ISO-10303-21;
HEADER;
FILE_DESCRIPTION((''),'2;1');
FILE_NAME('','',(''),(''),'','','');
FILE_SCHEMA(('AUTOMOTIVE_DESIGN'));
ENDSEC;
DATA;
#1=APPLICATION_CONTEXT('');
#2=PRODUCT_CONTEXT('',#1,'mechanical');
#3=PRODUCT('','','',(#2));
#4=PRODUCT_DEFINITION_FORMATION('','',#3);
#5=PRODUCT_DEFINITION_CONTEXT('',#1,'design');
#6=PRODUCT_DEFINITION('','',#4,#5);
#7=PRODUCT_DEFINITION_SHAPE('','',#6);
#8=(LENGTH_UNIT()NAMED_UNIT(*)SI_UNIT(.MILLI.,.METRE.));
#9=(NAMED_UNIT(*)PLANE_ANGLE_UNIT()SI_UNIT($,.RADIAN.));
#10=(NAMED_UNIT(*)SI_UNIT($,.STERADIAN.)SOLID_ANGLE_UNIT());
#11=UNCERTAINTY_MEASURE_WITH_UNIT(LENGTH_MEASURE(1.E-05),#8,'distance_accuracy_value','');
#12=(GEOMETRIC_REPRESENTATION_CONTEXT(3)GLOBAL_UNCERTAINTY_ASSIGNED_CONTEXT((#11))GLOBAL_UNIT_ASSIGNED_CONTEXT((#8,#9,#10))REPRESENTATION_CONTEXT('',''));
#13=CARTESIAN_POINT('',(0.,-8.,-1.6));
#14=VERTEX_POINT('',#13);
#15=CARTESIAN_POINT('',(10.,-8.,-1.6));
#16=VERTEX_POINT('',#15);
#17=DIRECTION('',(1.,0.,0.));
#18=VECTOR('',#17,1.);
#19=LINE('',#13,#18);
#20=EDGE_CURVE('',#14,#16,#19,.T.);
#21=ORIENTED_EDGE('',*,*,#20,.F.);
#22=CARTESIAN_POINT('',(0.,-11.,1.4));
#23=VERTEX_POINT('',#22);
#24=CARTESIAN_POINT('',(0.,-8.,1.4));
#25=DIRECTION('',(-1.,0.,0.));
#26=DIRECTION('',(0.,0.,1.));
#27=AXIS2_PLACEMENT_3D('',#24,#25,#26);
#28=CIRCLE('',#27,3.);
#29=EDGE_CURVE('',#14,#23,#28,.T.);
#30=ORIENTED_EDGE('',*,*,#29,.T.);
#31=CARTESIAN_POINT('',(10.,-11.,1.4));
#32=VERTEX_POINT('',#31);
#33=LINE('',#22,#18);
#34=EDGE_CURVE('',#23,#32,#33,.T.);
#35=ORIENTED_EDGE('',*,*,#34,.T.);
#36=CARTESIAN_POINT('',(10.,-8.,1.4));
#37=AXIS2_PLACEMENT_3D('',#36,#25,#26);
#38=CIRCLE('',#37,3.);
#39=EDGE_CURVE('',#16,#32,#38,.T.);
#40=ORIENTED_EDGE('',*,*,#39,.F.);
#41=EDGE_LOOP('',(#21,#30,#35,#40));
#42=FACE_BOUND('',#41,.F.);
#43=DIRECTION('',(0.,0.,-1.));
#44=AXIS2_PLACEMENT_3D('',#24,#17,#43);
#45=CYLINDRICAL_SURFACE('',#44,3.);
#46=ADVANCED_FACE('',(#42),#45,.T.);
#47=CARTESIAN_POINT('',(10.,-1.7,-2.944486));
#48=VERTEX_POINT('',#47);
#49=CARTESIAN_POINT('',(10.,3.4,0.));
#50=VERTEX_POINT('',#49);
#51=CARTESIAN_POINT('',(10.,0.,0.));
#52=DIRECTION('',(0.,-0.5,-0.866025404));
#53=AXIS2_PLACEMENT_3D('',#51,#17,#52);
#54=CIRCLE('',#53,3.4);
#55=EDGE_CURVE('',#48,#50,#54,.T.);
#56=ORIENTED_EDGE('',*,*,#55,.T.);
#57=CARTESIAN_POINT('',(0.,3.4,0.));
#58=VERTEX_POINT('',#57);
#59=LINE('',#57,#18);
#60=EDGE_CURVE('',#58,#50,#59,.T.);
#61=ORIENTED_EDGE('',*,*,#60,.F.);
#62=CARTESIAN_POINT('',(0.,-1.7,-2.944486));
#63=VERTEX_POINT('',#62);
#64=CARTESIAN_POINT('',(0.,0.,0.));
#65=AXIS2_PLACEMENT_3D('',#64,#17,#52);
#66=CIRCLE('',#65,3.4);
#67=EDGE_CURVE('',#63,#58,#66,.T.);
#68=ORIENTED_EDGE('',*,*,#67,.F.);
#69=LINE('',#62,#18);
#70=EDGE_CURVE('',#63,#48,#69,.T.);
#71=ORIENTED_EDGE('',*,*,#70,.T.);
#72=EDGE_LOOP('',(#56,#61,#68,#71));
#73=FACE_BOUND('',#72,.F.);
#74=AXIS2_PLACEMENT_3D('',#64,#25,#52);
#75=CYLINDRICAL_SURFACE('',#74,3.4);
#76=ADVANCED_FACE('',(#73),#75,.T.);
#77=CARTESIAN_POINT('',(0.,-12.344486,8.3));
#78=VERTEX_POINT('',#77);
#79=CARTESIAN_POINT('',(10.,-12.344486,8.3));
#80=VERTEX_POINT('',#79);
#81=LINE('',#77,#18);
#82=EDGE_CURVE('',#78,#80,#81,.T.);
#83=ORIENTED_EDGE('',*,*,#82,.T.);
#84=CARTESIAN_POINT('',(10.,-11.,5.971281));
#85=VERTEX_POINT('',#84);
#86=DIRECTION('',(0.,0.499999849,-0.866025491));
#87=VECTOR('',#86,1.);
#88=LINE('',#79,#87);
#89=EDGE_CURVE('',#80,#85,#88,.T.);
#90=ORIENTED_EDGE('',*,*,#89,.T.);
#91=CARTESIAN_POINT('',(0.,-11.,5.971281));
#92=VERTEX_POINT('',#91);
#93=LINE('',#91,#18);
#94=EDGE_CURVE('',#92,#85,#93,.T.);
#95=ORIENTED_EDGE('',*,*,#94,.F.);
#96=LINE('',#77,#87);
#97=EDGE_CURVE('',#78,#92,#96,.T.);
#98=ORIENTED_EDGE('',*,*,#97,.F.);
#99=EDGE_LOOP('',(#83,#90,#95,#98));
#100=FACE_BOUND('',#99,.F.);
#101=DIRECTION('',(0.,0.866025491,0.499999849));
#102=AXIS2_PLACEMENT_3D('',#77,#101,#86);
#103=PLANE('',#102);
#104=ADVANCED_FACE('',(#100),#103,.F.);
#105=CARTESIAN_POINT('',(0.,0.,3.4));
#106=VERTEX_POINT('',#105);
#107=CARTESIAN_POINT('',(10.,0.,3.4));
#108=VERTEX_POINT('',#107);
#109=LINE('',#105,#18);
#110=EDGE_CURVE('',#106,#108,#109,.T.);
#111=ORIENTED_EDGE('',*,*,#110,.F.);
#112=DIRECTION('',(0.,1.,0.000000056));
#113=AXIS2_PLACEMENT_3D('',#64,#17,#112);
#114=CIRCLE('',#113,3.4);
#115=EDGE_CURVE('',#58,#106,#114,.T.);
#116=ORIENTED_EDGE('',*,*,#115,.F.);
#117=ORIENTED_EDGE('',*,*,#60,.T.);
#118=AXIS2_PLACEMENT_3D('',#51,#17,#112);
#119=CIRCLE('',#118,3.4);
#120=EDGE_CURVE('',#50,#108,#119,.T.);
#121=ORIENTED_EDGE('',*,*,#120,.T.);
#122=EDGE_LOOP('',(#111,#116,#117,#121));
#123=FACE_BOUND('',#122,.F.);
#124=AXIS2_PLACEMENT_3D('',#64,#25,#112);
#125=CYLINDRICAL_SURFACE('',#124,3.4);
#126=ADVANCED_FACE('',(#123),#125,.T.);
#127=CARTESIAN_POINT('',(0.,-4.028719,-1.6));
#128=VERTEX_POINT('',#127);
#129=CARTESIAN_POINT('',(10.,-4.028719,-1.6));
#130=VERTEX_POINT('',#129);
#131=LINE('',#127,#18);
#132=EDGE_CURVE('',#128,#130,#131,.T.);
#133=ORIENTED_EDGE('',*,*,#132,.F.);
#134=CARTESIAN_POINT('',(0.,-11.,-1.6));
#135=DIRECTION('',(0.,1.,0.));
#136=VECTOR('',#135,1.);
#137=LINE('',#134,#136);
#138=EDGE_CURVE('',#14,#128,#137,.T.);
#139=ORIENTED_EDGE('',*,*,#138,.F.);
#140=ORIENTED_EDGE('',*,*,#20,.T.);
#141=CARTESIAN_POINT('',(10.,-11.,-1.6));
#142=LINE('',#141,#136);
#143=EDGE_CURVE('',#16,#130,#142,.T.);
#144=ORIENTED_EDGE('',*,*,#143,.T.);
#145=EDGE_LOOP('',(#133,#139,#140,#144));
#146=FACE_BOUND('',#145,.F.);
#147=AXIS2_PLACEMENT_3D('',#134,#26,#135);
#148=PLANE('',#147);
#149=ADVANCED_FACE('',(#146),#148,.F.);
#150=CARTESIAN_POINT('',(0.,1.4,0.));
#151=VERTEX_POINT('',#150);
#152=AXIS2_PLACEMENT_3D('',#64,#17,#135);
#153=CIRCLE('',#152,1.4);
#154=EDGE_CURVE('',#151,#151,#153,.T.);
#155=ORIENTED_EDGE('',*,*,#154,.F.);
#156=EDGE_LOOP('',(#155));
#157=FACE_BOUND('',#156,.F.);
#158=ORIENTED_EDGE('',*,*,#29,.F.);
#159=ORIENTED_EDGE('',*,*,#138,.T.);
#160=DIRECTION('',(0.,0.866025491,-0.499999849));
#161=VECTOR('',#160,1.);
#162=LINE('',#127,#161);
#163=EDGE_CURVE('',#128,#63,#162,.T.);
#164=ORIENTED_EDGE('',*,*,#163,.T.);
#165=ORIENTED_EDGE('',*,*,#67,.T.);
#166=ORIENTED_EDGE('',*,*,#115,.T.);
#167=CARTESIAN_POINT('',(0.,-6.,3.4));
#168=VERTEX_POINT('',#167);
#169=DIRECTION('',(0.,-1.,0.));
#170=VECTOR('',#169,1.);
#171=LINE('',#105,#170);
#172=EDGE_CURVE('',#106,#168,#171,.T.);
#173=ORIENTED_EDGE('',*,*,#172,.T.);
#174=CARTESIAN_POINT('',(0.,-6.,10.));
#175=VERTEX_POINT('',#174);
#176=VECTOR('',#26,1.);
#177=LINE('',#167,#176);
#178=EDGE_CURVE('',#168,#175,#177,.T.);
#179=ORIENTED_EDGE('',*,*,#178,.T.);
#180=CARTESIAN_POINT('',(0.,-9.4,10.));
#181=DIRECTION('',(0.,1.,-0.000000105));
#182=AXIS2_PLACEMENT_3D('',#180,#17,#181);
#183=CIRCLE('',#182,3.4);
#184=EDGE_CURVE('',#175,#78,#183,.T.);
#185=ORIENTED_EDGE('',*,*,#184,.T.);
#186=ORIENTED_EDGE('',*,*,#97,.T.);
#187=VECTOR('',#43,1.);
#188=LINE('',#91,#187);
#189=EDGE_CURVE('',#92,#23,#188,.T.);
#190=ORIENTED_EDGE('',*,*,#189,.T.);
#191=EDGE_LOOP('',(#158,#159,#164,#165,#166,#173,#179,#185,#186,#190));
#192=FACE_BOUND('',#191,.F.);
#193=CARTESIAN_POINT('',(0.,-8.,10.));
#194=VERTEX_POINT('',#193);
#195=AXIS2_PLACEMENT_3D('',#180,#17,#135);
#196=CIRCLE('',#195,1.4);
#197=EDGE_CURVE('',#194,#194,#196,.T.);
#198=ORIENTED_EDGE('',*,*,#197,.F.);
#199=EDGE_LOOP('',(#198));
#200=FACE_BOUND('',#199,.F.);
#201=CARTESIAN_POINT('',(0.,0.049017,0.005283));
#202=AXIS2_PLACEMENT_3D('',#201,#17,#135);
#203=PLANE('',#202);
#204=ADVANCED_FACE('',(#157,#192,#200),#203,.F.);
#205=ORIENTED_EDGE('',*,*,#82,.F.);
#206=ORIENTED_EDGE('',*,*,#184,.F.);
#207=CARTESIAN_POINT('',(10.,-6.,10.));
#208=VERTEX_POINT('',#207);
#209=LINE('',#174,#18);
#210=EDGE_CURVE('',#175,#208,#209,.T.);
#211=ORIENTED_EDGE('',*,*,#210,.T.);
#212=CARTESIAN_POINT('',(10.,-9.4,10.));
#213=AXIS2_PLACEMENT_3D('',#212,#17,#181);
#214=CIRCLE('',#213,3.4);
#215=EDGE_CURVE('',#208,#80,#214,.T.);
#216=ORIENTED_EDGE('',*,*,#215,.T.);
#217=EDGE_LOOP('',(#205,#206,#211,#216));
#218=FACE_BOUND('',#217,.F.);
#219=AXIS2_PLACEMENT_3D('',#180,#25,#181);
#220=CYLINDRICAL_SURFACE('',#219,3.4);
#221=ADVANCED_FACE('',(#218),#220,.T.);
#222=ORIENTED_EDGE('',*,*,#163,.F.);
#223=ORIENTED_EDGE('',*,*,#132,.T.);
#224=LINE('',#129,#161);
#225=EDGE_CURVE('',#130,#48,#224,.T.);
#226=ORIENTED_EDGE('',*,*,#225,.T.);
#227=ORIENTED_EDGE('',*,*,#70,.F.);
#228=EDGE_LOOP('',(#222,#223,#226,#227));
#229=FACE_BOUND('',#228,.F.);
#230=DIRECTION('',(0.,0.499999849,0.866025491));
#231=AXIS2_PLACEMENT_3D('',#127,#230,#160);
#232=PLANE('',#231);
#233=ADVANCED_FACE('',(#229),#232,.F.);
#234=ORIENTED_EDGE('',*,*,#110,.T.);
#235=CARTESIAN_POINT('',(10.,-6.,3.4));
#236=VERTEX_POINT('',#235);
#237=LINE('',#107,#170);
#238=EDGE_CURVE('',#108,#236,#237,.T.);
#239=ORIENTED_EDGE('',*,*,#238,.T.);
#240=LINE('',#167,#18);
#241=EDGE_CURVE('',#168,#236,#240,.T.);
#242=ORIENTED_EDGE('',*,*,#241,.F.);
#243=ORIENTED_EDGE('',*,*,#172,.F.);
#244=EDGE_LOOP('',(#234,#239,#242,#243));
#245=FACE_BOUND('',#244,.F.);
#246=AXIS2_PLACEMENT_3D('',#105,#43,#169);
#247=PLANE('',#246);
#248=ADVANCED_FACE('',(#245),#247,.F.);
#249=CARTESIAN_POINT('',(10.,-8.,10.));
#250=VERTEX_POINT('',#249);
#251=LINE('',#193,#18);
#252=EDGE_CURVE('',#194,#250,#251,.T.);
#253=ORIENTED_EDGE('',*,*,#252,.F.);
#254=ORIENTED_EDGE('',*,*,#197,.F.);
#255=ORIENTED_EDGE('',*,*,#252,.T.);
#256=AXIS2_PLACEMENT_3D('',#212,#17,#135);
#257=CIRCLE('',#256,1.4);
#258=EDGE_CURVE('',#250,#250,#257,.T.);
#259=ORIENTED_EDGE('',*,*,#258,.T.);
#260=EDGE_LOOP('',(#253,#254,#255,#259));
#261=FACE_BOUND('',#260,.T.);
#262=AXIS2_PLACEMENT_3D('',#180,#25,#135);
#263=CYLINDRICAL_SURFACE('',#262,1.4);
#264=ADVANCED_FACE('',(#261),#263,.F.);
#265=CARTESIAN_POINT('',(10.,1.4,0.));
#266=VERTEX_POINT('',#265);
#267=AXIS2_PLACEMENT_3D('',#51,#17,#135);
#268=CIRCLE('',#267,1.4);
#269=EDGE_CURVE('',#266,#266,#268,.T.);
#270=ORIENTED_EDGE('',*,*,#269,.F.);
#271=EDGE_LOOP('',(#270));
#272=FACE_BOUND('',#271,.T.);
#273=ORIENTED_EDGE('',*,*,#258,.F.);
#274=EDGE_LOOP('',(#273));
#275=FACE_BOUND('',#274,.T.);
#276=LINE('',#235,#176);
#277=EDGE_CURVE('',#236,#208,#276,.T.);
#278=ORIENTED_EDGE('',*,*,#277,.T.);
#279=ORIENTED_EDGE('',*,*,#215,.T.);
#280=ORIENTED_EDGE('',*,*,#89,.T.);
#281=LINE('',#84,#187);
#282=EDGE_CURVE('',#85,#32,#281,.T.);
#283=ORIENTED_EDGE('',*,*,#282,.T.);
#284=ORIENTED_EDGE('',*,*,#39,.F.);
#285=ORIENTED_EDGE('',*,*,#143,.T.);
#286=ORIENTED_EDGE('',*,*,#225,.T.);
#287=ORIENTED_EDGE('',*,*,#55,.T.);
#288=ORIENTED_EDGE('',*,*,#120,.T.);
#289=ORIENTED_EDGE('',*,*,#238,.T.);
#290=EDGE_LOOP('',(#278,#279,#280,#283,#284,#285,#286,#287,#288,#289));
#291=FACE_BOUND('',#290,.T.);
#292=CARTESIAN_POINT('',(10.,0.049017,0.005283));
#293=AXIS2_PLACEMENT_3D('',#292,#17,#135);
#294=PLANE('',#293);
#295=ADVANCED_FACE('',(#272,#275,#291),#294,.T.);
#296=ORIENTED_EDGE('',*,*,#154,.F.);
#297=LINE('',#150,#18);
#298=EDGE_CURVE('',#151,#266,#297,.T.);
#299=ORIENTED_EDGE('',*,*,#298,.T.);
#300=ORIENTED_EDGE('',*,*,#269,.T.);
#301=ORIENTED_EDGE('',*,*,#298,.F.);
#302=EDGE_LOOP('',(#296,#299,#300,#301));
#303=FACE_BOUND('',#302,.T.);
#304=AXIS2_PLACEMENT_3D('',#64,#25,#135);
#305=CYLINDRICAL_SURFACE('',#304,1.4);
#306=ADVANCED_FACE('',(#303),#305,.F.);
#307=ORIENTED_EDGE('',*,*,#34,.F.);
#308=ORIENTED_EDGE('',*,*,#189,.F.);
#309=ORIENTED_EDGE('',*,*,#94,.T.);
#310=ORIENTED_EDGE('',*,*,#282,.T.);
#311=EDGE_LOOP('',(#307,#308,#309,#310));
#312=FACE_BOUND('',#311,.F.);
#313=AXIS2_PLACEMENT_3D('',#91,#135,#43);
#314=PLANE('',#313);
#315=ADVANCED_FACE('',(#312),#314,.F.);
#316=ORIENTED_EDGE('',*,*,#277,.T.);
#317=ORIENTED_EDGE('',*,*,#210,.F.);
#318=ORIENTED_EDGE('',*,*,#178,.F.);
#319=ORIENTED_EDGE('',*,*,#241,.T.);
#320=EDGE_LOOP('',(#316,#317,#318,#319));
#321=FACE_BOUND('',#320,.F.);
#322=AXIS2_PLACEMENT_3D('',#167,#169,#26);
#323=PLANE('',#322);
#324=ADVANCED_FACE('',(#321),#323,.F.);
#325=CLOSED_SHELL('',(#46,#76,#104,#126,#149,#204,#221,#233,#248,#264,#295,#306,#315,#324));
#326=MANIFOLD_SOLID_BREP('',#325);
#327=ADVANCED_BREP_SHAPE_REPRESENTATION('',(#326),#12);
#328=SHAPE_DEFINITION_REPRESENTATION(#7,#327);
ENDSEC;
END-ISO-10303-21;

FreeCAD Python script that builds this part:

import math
import FreeCAD as App
import Part
import Sketcher
Q = App.Units.Quantity


def edges_at(feature, points):
    """Names of the edges that pass closest to the given points."""
    edges = feature.Shape.Edges
    near = lambda p: min(range(len(edges)), key=lambda i: edges[i].distToShape(Part.Vertex(*p))[0])
    return sorted({f"Edge{near(p) + 1}" for p in points})

doc = App.newDocument("Part")
body = doc.addObject("PartDesign::Body", "Body")

# Sketch on YZ plane
sketch1 = body.newObject("Sketcher::SketchObject", "Sketch")
sketch1.AttachmentSupport = (doc.getObject("YZ_Plane"), [""])
sketch1.MapMode = "FlatFace"
sketch1.addGeometry([
    Part.ArcOfCircle(Part.Circle(App.Vector(0, 0, 0), App.Vector(0, 0, 1), 3.4), math.radians(-120), math.radians(-0.000006)),  # 0
    Part.ArcOfCircle(Part.Circle(App.Vector(0, 0, 0), App.Vector(0, 0, 1), 3.4), math.radians(0.000003), math.radians(89.999997)),  # 1
    Part.LineSegment(App.Vector(0, 3.4, 0), App.Vector(-6, 3.4, 0)),  # 2
    Part.LineSegment(App.Vector(-6, 3.4, 0), App.Vector(-6, 10, 0)),  # 3
    Part.ArcOfCircle(Part.Circle(App.Vector(-9.4, 10, 0), App.Vector(0, 0, 1), 3.4), math.radians(-0.000006), math.radians(210.000008)),  # 4
    Part.LineSegment(App.Vector(-12.344486, 8.3, 0), App.Vector(-11, 5.971281, 0)),  # 5
    Part.LineSegment(App.Vector(-11, 5.971281, 0), App.Vector(-11, -1.6, 0)),  # 6
    Part.LineSegment(App.Vector(-11, -1.6, 0), App.Vector(-4.028719, -1.6, 0)),  # 7
    Part.LineSegment(App.Vector(-4.028719, -1.6, 0), App.Vector(-1.7, -2.944486, 0)),  # 8
    Part.Circle(App.Vector(0, 0, 0), App.Vector(0, 0, 1), 1.4),  # 9
    Part.Circle(App.Vector(-9.4, 10, 0), App.Vector(0, 0, 1), 1.4),  # 10
], False)
sketch1.addConstraint([
    Sketcher.Constraint("Tangent", 0, 2, 1, 1),
    Sketcher.Constraint("Tangent", 1, 2, 2, 1),
    Sketcher.Constraint("Coincident", 2, 2, 3, 1),
    Sketcher.Constraint("Tangent", 3, 2, 4, 1),
    Sketcher.Constraint("Tangent", 4, 2, 5, 1),
    Sketcher.Constraint("Coincident", 5, 2, 6, 1),
    Sketcher.Constraint("Coincident", 6, 2, 7, 1),
    Sketcher.Constraint("Coincident", 7, 2, 8, 1),
    Sketcher.Constraint("Tangent", 8, 2, 0, 1),
    Sketcher.Constraint("Horizontal", 2),
    Sketcher.Constraint("Vertical", 3),
    Sketcher.Constraint("Vertical", 6),
    Sketcher.Constraint("Horizontal", 7),
    Sketcher.Constraint("Coincident", 0, 3, -1, 1),
    Sketcher.Constraint("Coincident", 9, 3, -1, 1),
    Sketcher.Constraint("Coincident", 10, 3, 4, 3),
    Sketcher.Constraint("Equal", 0, 1),
    Sketcher.Constraint("Equal", 1, 4),
    Sketcher.Constraint("Equal", 9, 10),
    Sketcher.Constraint("PointOnObject", 0, 2, -1),
    Sketcher.Constraint("Equal", 5, 8),
    Sketcher.Constraint("Diameter", 9, 2.8),
    Sketcher.Constraint("Radius", 0, 3.4),
    Sketcher.Constraint("DistanceX", 2, 2, 2, 1, 6.0),
    Sketcher.Constraint("Angle", 5, Q("-60.00001 deg")),
    Sketcher.Constraint("Angle", 8, Q("-29.99999 deg")),
    Sketcher.Constraint("DistanceY", 3, 1, 3, 2, 6.6),
    Sketcher.Constraint("DistanceX", 5, 2, -1, 1, 11.0),
])
pad1 = body.newObject("PartDesign::Pad", "Pad")
pad1.Profile = sketch1
pad1.Length = 10
doc.recompute()

fillet = body.newObject("PartDesign::Fillet", "Fillet")
fillet.Base = (pad1, edges_at(pad1, [(5, -11, -1.6)]))
fillet.Radius = 3

doc.recompute()
